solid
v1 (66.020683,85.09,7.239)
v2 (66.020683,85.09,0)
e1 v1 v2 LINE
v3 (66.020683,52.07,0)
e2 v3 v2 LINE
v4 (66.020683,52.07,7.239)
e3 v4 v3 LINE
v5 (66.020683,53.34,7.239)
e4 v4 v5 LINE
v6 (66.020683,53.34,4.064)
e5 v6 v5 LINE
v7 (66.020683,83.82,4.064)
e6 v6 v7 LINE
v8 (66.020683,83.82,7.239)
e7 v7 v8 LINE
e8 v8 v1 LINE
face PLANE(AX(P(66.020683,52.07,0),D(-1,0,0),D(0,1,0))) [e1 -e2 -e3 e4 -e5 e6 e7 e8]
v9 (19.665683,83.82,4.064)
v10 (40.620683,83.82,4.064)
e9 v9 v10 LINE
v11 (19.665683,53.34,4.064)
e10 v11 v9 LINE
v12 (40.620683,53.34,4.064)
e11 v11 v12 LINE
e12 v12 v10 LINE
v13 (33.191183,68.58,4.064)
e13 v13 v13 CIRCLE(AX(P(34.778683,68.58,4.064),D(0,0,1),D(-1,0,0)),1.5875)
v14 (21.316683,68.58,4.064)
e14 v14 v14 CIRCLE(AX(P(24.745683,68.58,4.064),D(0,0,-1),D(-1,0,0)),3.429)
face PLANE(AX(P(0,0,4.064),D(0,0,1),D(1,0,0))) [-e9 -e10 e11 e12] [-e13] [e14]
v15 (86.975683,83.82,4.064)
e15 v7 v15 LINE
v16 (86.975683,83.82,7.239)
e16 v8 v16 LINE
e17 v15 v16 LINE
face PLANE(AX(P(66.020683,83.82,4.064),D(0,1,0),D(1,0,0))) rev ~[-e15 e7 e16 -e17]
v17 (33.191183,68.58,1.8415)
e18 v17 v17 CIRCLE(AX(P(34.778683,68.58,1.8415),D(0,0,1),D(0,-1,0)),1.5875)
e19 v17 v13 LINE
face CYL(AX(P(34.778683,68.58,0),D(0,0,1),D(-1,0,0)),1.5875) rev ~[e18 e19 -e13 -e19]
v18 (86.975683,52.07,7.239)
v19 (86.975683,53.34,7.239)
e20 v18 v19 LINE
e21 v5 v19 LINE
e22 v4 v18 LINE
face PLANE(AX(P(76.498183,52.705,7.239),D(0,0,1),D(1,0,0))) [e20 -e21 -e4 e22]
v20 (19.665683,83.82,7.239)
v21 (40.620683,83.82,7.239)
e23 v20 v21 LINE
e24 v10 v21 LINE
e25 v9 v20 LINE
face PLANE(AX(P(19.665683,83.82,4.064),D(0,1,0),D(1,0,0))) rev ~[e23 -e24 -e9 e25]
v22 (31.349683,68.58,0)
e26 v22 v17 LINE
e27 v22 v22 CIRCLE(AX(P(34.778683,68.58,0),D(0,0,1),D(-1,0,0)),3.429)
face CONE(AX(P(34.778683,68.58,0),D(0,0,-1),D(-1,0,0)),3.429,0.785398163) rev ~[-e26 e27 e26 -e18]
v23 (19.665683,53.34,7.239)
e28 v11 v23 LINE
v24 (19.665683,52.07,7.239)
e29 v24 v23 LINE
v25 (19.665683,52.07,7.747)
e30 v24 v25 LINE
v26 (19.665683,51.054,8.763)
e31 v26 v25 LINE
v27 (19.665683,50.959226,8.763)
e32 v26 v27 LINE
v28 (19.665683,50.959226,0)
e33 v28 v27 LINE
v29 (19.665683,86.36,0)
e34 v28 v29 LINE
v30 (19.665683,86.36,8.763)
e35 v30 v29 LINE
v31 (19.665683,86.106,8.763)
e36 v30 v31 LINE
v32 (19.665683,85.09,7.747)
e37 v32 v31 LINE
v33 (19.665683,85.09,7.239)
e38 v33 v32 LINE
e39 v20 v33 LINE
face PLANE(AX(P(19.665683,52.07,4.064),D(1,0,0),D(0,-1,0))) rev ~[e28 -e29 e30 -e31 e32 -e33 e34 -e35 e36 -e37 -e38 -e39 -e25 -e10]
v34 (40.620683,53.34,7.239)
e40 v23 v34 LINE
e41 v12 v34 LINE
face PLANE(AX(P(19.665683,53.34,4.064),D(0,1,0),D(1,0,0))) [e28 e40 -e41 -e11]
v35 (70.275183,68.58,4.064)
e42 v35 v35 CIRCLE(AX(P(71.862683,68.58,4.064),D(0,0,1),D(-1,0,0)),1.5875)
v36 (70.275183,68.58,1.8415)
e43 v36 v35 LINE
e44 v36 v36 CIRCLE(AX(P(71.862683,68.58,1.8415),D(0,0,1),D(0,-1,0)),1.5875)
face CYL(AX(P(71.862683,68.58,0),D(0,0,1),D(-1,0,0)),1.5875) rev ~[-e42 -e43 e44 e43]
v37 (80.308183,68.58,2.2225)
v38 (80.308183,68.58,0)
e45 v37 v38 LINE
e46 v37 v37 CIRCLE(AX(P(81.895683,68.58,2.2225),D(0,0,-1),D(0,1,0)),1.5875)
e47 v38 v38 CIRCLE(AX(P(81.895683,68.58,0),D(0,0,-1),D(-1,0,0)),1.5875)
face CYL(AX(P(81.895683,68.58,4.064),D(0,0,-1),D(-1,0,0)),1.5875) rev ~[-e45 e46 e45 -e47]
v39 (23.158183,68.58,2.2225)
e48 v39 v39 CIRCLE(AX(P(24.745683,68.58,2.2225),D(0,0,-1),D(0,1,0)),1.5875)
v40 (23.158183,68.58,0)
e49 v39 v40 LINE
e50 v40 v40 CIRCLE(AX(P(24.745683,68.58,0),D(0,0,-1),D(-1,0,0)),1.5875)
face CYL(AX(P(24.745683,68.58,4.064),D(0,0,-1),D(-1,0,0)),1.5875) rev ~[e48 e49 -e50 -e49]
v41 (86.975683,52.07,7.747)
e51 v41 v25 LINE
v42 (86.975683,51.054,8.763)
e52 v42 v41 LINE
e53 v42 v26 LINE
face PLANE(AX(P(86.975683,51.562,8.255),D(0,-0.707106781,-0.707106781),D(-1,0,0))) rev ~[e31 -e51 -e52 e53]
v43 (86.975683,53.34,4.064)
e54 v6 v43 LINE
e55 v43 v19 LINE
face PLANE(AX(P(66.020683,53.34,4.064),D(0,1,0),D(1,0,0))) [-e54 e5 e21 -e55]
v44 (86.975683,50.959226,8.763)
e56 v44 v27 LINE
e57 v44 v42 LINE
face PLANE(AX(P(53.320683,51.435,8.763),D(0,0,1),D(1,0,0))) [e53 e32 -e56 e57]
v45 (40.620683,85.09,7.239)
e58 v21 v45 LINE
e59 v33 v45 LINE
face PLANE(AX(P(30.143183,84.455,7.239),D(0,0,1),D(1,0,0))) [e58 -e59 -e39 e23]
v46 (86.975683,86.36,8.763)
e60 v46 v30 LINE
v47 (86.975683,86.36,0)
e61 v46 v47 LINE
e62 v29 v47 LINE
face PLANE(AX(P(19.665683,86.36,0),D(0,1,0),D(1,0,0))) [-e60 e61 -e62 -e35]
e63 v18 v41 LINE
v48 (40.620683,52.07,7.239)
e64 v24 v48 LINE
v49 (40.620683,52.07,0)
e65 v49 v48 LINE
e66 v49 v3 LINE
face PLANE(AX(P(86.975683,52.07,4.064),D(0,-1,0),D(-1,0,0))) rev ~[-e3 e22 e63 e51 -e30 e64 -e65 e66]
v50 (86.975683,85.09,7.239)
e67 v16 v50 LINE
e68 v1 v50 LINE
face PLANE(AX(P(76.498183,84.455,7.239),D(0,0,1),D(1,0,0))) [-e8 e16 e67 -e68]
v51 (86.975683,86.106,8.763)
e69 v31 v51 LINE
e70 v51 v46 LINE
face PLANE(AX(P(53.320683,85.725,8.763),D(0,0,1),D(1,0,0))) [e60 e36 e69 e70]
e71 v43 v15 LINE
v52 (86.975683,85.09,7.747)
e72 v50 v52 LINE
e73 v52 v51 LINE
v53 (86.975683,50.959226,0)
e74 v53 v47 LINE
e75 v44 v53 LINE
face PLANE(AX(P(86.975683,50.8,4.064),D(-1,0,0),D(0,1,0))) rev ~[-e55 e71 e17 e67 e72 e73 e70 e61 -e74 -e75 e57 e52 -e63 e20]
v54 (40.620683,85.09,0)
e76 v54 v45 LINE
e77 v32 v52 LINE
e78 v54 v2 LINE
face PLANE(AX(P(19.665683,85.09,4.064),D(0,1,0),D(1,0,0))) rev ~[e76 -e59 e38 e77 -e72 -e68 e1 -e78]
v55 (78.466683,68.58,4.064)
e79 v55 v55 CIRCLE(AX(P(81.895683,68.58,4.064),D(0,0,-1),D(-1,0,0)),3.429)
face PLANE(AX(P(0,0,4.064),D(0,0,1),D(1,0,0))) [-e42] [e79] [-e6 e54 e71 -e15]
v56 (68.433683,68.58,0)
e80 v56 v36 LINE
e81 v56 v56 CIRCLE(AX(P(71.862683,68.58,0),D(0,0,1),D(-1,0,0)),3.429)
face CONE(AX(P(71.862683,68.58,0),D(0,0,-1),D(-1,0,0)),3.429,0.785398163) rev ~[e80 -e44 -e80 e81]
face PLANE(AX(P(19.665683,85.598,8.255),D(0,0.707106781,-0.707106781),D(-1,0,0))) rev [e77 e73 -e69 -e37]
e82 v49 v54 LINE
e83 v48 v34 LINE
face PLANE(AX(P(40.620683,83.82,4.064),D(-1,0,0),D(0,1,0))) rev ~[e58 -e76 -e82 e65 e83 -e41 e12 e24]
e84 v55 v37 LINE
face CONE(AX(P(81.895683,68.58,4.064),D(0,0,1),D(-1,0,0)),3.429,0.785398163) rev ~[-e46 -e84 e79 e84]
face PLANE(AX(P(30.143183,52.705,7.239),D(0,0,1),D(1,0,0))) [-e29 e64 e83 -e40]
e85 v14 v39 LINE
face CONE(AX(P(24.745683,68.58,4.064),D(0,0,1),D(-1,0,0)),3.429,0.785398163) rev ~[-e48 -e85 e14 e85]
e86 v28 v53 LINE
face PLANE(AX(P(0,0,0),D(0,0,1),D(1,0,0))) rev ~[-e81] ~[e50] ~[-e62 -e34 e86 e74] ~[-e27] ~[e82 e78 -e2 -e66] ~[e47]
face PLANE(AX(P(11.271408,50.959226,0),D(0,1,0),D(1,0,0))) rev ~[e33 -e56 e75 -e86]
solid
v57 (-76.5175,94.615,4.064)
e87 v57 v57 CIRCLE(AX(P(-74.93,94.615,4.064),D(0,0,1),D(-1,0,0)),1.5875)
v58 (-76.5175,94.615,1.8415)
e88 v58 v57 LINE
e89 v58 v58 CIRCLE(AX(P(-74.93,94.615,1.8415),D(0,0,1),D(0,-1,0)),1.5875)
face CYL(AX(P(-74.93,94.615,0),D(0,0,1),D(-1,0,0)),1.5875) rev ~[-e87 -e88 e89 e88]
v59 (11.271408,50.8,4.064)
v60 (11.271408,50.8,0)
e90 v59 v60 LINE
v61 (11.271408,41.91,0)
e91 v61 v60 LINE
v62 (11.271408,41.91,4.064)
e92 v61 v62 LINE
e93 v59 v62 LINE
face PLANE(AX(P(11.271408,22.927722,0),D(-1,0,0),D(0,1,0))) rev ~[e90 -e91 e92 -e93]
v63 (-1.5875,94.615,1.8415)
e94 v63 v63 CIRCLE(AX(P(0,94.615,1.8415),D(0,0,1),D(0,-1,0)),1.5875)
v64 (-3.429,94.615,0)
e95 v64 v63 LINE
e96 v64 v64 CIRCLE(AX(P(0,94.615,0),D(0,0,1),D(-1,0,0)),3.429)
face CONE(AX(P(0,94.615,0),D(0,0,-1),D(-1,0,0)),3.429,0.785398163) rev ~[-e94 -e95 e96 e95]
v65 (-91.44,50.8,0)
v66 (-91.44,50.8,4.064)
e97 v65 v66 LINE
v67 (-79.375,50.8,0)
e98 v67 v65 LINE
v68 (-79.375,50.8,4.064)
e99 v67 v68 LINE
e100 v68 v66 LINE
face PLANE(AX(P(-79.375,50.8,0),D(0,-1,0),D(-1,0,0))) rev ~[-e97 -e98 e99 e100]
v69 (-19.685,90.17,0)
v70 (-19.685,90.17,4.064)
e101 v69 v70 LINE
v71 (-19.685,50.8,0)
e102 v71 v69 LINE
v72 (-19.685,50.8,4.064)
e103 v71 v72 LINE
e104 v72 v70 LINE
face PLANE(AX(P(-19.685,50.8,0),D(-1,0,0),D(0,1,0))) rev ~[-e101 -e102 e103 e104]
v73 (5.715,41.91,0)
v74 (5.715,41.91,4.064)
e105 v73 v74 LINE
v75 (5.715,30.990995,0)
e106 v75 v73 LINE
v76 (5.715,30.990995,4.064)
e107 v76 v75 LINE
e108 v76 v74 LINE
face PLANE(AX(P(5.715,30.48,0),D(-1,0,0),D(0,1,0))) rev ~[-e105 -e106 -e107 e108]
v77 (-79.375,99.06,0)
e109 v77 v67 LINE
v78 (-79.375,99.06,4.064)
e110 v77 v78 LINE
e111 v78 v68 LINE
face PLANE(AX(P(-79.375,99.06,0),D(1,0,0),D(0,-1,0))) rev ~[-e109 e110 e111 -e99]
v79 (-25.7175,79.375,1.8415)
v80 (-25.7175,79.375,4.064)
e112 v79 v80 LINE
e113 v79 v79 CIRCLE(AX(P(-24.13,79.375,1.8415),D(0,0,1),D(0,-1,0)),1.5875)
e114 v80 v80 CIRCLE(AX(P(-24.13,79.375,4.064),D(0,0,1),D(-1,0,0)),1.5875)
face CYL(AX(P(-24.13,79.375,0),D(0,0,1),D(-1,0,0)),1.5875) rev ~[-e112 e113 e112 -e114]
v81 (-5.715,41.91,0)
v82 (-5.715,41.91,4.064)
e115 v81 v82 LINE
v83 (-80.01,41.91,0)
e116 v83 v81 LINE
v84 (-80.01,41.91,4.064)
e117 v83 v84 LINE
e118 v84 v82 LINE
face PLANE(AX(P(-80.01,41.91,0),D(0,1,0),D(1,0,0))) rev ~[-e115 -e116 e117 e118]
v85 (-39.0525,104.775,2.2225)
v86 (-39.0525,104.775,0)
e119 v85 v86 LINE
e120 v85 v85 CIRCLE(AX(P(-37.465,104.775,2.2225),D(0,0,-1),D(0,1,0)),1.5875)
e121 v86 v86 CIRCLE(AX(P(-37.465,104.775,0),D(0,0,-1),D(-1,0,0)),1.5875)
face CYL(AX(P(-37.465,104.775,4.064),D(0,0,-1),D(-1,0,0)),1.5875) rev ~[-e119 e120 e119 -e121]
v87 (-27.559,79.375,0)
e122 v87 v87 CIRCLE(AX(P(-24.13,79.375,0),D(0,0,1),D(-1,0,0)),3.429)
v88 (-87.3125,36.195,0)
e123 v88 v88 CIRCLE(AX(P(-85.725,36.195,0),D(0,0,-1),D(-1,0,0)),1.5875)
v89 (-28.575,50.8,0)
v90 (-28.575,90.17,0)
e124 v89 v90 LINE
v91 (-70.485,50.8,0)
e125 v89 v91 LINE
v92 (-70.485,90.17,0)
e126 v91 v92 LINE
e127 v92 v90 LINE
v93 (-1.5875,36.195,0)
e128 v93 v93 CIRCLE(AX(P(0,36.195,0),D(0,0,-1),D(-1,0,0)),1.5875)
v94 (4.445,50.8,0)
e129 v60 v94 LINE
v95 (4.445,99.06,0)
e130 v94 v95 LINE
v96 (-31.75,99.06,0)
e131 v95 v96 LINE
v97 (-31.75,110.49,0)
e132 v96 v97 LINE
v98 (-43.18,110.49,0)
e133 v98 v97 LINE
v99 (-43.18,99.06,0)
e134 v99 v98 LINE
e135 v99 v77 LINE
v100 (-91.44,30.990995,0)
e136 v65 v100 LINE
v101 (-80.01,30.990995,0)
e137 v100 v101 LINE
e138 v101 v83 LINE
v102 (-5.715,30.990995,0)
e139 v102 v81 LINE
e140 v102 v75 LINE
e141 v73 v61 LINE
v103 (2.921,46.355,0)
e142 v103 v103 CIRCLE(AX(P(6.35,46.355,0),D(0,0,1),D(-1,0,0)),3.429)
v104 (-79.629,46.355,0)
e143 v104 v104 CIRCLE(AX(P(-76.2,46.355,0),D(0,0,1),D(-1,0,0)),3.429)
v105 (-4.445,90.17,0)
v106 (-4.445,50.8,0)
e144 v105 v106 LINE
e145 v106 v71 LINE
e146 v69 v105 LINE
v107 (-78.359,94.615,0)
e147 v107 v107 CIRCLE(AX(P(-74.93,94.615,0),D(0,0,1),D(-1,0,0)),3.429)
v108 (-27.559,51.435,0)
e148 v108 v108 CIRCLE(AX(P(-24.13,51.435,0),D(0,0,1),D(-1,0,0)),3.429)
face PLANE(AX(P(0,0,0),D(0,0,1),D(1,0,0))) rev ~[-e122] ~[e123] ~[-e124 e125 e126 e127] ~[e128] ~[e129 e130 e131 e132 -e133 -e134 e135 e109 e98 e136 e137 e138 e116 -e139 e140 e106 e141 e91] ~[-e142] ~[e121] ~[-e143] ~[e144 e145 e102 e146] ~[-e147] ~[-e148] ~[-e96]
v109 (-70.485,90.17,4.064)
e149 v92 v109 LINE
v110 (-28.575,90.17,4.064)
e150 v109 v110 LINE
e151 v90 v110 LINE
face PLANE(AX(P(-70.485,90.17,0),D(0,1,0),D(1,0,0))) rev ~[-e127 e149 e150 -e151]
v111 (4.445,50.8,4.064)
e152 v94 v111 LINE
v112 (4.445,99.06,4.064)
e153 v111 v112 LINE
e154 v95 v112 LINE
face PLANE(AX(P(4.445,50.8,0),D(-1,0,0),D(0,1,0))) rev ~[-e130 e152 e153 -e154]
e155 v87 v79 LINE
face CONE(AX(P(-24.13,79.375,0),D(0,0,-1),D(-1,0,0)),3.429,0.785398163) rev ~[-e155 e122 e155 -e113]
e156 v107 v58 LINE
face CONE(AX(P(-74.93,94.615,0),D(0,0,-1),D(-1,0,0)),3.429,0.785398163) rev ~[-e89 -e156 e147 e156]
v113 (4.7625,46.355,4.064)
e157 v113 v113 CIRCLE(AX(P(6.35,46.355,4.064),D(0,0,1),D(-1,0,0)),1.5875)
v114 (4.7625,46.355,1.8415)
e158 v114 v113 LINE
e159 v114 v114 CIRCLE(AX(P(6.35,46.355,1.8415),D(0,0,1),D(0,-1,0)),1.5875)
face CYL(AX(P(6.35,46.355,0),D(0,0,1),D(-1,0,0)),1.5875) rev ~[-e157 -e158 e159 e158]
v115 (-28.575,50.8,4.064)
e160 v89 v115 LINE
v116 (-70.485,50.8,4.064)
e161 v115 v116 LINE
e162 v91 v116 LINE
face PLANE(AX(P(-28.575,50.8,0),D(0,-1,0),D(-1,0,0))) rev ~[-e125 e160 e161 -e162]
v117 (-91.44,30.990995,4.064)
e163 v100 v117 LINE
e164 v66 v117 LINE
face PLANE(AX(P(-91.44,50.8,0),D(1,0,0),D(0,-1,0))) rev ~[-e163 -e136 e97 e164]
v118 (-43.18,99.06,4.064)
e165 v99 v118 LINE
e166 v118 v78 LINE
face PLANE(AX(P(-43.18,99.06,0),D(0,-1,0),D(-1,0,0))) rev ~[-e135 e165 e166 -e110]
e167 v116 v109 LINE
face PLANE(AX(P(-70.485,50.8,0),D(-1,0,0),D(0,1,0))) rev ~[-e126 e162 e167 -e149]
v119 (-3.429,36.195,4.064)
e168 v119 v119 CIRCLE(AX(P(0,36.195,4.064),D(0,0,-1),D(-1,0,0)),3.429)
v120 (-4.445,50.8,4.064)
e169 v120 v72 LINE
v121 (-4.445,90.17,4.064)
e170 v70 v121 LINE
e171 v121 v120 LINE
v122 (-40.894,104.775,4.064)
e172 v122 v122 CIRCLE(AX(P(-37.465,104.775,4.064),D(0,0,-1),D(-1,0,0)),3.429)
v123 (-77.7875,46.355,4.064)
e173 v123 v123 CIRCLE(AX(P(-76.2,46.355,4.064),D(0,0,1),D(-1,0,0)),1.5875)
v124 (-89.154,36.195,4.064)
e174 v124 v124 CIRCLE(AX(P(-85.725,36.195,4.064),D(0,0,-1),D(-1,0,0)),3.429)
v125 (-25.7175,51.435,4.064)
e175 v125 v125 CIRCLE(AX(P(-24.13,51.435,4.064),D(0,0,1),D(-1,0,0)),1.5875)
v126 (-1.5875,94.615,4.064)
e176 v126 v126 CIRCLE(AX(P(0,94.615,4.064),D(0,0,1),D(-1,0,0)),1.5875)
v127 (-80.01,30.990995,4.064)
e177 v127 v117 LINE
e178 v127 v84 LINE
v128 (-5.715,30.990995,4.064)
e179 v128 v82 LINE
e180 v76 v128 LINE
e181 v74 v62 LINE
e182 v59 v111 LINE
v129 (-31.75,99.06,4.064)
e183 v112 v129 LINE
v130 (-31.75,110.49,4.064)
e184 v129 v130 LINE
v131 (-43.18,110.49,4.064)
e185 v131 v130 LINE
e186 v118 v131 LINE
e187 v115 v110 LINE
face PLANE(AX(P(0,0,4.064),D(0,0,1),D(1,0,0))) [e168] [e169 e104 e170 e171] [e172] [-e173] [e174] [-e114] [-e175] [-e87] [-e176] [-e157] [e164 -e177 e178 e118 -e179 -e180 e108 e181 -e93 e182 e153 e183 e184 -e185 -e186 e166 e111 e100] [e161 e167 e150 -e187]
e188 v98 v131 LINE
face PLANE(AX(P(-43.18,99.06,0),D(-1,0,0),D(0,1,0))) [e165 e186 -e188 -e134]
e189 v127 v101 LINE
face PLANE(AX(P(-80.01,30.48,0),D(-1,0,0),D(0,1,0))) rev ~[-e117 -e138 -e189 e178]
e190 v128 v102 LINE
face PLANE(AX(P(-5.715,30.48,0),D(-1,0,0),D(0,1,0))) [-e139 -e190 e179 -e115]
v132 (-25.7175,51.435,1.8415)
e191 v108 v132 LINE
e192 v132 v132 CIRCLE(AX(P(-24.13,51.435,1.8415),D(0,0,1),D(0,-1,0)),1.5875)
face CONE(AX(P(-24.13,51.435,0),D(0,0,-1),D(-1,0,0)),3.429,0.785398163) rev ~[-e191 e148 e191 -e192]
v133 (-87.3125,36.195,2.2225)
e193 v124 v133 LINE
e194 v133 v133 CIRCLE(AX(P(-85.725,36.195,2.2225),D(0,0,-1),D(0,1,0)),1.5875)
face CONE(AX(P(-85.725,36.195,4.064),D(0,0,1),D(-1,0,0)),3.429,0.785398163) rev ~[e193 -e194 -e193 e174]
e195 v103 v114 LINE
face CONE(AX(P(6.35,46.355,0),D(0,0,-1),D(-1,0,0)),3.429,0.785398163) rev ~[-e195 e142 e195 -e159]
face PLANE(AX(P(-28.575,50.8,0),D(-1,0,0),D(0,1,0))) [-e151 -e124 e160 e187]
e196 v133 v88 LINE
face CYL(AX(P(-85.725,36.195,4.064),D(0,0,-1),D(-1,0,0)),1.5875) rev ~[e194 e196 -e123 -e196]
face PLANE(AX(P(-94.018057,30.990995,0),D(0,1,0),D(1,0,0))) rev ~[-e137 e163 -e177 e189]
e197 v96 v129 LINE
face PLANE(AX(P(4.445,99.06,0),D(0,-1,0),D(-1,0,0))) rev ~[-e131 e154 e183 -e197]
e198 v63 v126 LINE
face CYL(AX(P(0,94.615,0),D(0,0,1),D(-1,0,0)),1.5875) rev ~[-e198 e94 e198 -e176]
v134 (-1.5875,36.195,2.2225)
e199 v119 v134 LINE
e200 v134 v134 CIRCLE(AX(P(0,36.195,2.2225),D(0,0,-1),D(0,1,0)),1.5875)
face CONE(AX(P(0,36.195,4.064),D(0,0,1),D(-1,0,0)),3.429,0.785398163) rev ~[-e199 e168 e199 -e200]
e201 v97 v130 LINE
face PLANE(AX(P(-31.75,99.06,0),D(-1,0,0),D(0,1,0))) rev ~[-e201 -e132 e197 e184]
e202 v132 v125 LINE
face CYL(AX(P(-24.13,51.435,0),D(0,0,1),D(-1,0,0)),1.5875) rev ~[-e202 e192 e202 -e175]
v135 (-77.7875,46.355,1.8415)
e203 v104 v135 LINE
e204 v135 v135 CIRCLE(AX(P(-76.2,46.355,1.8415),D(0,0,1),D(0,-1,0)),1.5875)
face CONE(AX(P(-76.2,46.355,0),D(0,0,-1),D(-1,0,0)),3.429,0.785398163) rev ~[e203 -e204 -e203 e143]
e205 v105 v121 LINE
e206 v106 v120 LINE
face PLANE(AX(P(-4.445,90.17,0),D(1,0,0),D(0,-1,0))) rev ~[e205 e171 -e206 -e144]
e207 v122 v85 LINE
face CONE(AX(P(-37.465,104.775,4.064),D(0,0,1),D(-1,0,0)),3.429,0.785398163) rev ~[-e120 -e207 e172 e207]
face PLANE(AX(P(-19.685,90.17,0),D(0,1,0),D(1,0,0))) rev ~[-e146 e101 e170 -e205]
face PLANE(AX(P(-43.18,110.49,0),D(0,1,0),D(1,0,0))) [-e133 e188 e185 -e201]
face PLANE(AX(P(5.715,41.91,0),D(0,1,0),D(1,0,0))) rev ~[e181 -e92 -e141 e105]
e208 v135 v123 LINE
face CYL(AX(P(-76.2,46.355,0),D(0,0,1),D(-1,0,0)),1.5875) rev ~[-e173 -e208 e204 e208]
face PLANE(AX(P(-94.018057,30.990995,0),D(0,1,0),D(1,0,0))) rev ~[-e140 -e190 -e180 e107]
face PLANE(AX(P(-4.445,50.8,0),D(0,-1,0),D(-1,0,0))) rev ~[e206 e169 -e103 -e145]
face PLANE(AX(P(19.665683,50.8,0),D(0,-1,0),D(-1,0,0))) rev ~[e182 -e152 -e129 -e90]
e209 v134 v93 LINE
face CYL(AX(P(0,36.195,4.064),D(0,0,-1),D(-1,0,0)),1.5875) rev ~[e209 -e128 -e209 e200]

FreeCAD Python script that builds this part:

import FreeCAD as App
import Part
import Sketcher

V = App.Vector
Q = App.Units.Quantity


def edges_at(feature, points):
    """Names of the edges that pass closest to the given points."""
    edges = feature.Shape.Edges
    near = lambda p: min(range(len(edges)), key=lambda i: edges[i].distToShape(Part.Vertex(*p))[0])
    return sorted({f"Edge{near(p) + 1}" for p in points})


def add_polygon(sketch, points):
    """Adds a closed chain of lines whose ends are joined by coincident constraints."""
    first, n = sketch.GeometryCount, len(points)
    for a, b in zip(points, points[1:] + points[:1]):
        sketch.addGeometry(Part.LineSegment(App.Vector(*a, 0), App.Vector(*b, 0)), False)
    for i in range(n):
        sketch.addConstraint(Sketcher.Constraint("Coincident", first + i, 2, first + (i + 1) % n, 1))

doc = App.newDocument("Part")
body = doc.addObject("PartDesign::Body", "Body")
body.AllowCompound = True

sketch1 = body.newObject("Sketcher::SketchObject", "Sketch")
sketch1.AttachmentSupport = (doc.getObject("XY_Plane"), [""])
sketch1.MapMode = "FlatFace"
add_polygon(sketch1, [(-80, -30.5), (-5.7, -30.5), (-5.7, -41.9), (5.7, -41.9), (5.7, -30.5), (80, -30.5), (80, -41.9), (91.4, -41.9), (91.4, 50.8), (87, 50.8), (87, 86.4), (19.7, 86.4), (19.7, 50.8), (4.4, 50.8), (4.4, 99.1), (-31.8, 99.1), (-31.8, 110.5), (-43.2, 110.5), (-43.2, 99.1), (-79.4, 99.1), (-79.4, 50.8), (-91.4, 50.8), (-91.4, -41.9), (-80, -41.9)])
sketch1.addGeometry(Part.Circle(V(-86.4, -25.4, 0), V(0, 0, 1), 2.5), False)
add_polygon(sketch1, [(-82.5, -21.6), (-82.5, 21.6), (-30.5, 21.6), (-30.5, -21.6)])
sketch1.addGeometry(Part.Circle(V(-35.6, -25.4, 0), V(0, 0, 1), 2.5), False)
sketch1.addGeometry(Part.Circle(V(-25.4, -25.4, 0), V(0, 0, 1), 2.5), False)
sketch1.addGeometry(Part.Circle(V(-86.4, 25.4, 0), V(0, 0, 1), 2.5), False)
sketch1.addGeometry(Part.Circle(V(-35.6, 25.4, 0), V(0, 0, 1), 2.5), False)
sketch1.addGeometry(Part.Circle(V(-25.4, 25.4, 0), V(0, 0, 1), 2.5), False)
sketch1.addGeometry(Part.Circle(V(25.4, -25.4, 0), V(0, 0, 1), 2.5), False)
sketch1.addGeometry(Part.Circle(V(35.6, -25.4, 0), V(0, 0, 1), 2.5), False)
add_polygon(sketch1, [(21.6, -21.6), (-21.6, -21.6), (-21.6, 21.6), (21.6, 21.6)])
sketch1.addGeometry(Part.Circle(V(86.4, -25.4, 0), V(0, 0, 1), 2.5), False)
add_polygon(sketch1, [(30.5, 21.6), (82.5, 21.6), (82.5, -21.6), (30.5, -21.6)])
sketch1.addGeometry(Part.Circle(V(25.4, 25.4, 0), V(0, 0, 1), 2.5), False)
sketch1.addGeometry(Part.Circle(V(35.6, 25.4, 0), V(0, 0, 1), 2.5), False)
sketch1.addGeometry(Part.Circle(V(86.4, 25.4, 0), V(0, 0, 1), 2.5), False)
add_polygon(sketch1, [(-5.7, 41.9), (-5.7, 30.5), (-80, 30.5), (-80, 41.9)])
add_polygon(sketch1, [(-28.6, 50.8), (-70.5, 50.8), (-70.5, 90.2), (-28.6, 90.2)])
add_polygon(sketch1, [(-4.4, 50.8), (-19.7, 50.8), (-19.7, 90.2), (-4.4, 90.2)])
add_polygon(sketch1, [(80, 41.9), (80, 30.5), (5.7, 30.5), (5.7, 41.9)])
add_polygon(sketch1, [(66, 52.1), (40.6, 52.1), (40.6, 85.1), (66, 85.1)])
sketch1.addConstraint(Sketcher.Constraint("Horizontal", 0))
sketch1.addConstraint(Sketcher.Constraint("Vertical", 1))
sketch1.addConstraint(Sketcher.Constraint("Horizontal", 2))
sketch1.addConstraint(Sketcher.Constraint("Vertical", 3))
sketch1.addConstraint(Sketcher.Constraint("Horizontal", 4))
sketch1.addConstraint(Sketcher.Constraint("Vertical", 5))
sketch1.addConstraint(Sketcher.Constraint("Horizontal", 6))
sketch1.addConstraint(Sketcher.Constraint("Vertical", 7))
sketch1.addConstraint(Sketcher.Constraint("Horizontal", 8))
sketch1.addConstraint(Sketcher.Constraint("Vertical", 9))
sketch1.addConstraint(Sketcher.Constraint("Horizontal", 10))
sketch1.addConstraint(Sketcher.Constraint("Vertical", 11))
sketch1.addConstraint(Sketcher.Constraint("Horizontal", 12))
sketch1.addConstraint(Sketcher.Constraint("Vertical", 13))
sketch1.addConstraint(Sketcher.Constraint("Horizontal", 14))
sketch1.addConstraint(Sketcher.Constraint("Vertical", 15))
sketch1.addConstraint(Sketcher.Constraint("Horizontal", 16))
sketch1.addConstraint(Sketcher.Constraint("Vertical", 17))
sketch1.addConstraint(Sketcher.Constraint("Horizontal", 18))
sketch1.addConstraint(Sketcher.Constraint("Vertical", 19))
sketch1.addConstraint(Sketcher.Constraint("Horizontal", 20))
sketch1.addConstraint(Sketcher.Constraint("Vertical", 21))
sketch1.addConstraint(Sketcher.Constraint("Horizontal", 22))
sketch1.addConstraint(Sketcher.Constraint("Vertical", 23))
sketch1.addConstraint(Sketcher.Constraint("Vertical", 25))
sketch1.addConstraint(Sketcher.Constraint("Horizontal", 26))
sketch1.addConstraint(Sketcher.Constraint("Vertical", 27))
sketch1.addConstraint(Sketcher.Constraint("Horizontal", 28))
sketch1.addConstraint(Sketcher.Constraint("Horizontal", 36))
sketch1.addConstraint(Sketcher.Constraint("Vertical", 37))
sketch1.addConstraint(Sketcher.Constraint("Horizontal", 38))
sketch1.addConstraint(Sketcher.Constraint("Vertical", 39))
sketch1.addConstraint(Sketcher.Constraint("Horizontal", 41))
sketch1.addConstraint(Sketcher.Constraint("Vertical", 42))
sketch1.addConstraint(Sketcher.Constraint("Horizontal", 43))
sketch1.addConstraint(Sketcher.Constraint("Vertical", 44))
sketch1.addConstraint(Sketcher.Constraint("Vertical", 48))
sketch1.addConstraint(Sketcher.Constraint("Horizontal", 49))
sketch1.addConstraint(Sketcher.Constraint("Vertical", 50))
sketch1.addConstraint(Sketcher.Constraint("Horizontal", 51))
sketch1.addConstraint(Sketcher.Constraint("Horizontal", 52))
sketch1.addConstraint(Sketcher.Constraint("Vertical", 53))
sketch1.addConstraint(Sketcher.Constraint("Horizontal", 54))
sketch1.addConstraint(Sketcher.Constraint("Vertical", 55))
sketch1.addConstraint(Sketcher.Constraint("Horizontal", 56))
sketch1.addConstraint(Sketcher.Constraint("Vertical", 57))
sketch1.addConstraint(Sketcher.Constraint("Horizontal", 58))
sketch1.addConstraint(Sketcher.Constraint("Vertical", 59))
sketch1.addConstraint(Sketcher.Constraint("Vertical", 60))
sketch1.addConstraint(Sketcher.Constraint("Horizontal", 61))
sketch1.addConstraint(Sketcher.Constraint("Vertical", 62))
sketch1.addConstraint(Sketcher.Constraint("Horizontal", 63))
sketch1.addConstraint(Sketcher.Constraint("Horizontal", 64))
sketch1.addConstraint(Sketcher.Constraint("Vertical", 65))
sketch1.addConstraint(Sketcher.Constraint("Horizontal", 66))
sketch1.addConstraint(Sketcher.Constraint("Vertical", 67))
sketch1.addConstraint(Sketcher.Constraint("Equal", 24, 29))
sketch1.addConstraint(Sketcher.Constraint("Equal", 29, 30))
sketch1.addConstraint(Sketcher.Constraint("Equal", 30, 31))
sketch1.addConstraint(Sketcher.Constraint("Equal", 31, 32))
sketch1.addConstraint(Sketcher.Constraint("Equal", 32, 33))
sketch1.addConstraint(Sketcher.Constraint("Equal", 33, 34))
sketch1.addConstraint(Sketcher.Constraint("Equal", 34, 35))
sketch1.addConstraint(Sketcher.Constraint("Equal", 35, 40))
sketch1.addConstraint(Sketcher.Constraint("Equal", 40, 45))
sketch1.addConstraint(Sketcher.Constraint("Equal", 45, 46))
sketch1.addConstraint(Sketcher.Constraint("Equal", 46, 47))
sketch1.addConstraint(Sketcher.Constraint("Symmetric", 33, 3, 34, 3, -1, 1))
sketch1.addConstraint(Sketcher.Constraint("Symmetric", 32, 3, 35, 3, -1, 1))
sketch1.addConstraint(Sketcher.Constraint("Symmetric", 31, 3, 40, 3, -1, 1))
sketch1.addConstraint(Sketcher.Constraint("Symmetric", 30, 3, 45, 3, -1, 1))
sketch1.addConstraint(Sketcher.Constraint("Symmetric", 29, 3, 46, 3, -1, 1))
sketch1.addConstraint(Sketcher.Constraint("Symmetric", 24, 3, 47, 3, -1, 1))
sketch1.addConstraint(Sketcher.Constraint("Symmetric", 36, 2, 38, 2, -1, 1))
sketch1.addConstraint(Sketcher.Constraint("Symmetric", 28, 2, 41, 2, -1, 1))
sketch1.addConstraint(Sketcher.Constraint("Symmetric", 26, 2, 43, 2, -1, 1))
sketch1.addConstraint(Sketcher.Constraint("Symmetric", 3, 2, 48, 2, -1, 1))
sketch1.addConstraint(Sketcher.Constraint("Symmetric", 5, 2, 50, 2, -1, 1))
sketch1.addConstraint(Sketcher.Constraint("Symmetric", 23, 2, 60, 2, -1, 1))
sketch1.addConstraint(Sketcher.Constraint("Symmetric", 1, 2, 62, 2, -1, 1))
sketch1.addConstraint(Sketcher.Constraint("Symmetric", 30, 3, 34, 3, -2))
sketch1.addConstraint(Sketcher.Constraint("Symmetric", 29, 3, 35, 3, -2))
sketch1.addConstraint(Sketcher.Constraint("Symmetric", 24, 3, 40, 3, -2))
sketch1.addConstraint(Sketcher.Constraint("Symmetric", 0, 2, 3, 2, -2))
sketch1.addConstraint(Sketcher.Constraint("Symmetric", 7, 2, 20, 2, -2))
sketch1.addConstraint(Sketcher.Constraint("Symmetric", 5, 2, 22, 2, -2))
sketch1.addConstraint(Sketcher.Constraint("Symmetric", 12, 2, 59, 2, -2))
sketch1.addConstraint(Sketcher.Constraint("Horizontal", 24, 3, 29, 3))
sketch1.addConstraint(Sketcher.Constraint("Horizontal", 29, 3, 30, 3))
sketch1.addConstraint(Sketcher.Constraint("Horizontal", 2, 2, 5, 2))
sketch1.addConstraint(Sketcher.Constraint("Horizontal", 8, 2, 11, 2))
sketch1.addConstraint(Sketcher.Constraint("Horizontal", 14, 2, 17, 2))
sketch1.addConstraint(Sketcher.Constraint("Horizontal", 28, 2, 36, 2))
sketch1.addConstraint(Sketcher.Constraint("Horizontal", 26, 2, 37, 2))
sketch1.addConstraint(Sketcher.Constraint("Horizontal", 20, 2, 52, 2))
sketch1.addConstraint(Sketcher.Constraint("Horizontal", 54, 2, 57, 2))
sketch1.addConstraint(Sketcher.Constraint("Equal", 2, 6))
sketch1.addConstraint(Sketcher.Constraint("Equal", 6, 16))
sketch1.addConstraint(Sketcher.Constraint("Equal", 14, 18))
sketch1.addConstraint(Sketcher.Constraint("Equal", 22, 1))
sketch1.addConstraint(Sketcher.Constraint("Equal", 5, 15))
sketch1.addConstraint(Sketcher.Constraint("Equal", 38, 25))
sketch1.addConstraint(Sketcher.Constraint("Diameter", 24, Q("0.2 in")))
sketch1.addConstraint(Sketcher.Constraint("DistanceX", 64, 2, 64, 1, Q("1 in")))
sketch1.addConstraint(Sketcher.Constraint("DistanceX", 36, 2, 36, 1, Q("1.7 in")))
sketch1.addConstraint(Sketcher.Constraint("DistanceX", 56, 2, 56, 1, Q("0.6 in")))
sketch1.addConstraint(Sketcher.Constraint("DistanceY", 9, 1, 9, 2, Q("1.4 in")))
sketch1.addConstraint(Sketcher.Constraint("DistanceY", 13, 1, 13, 2, Q("1.9 in")))
sketch1.addConstraint(Sketcher.Constraint("DistanceY", 65, 1, 65, 2, Q("1.3 in")))
sketch1.addConstraint(Sketcher.Constraint("DistanceY", 24, 3, -1, 1, Q("1 in")))
sketch1.addConstraint(Sketcher.Constraint("DistanceX", 30, 3, -1, 1, Q("1 in")))
sketch1.addConstraint(Sketcher.Constraint("DistanceY", -1, 1, 7, 2, Q("2 in")))
sketch1.addConstraint(Sketcher.Constraint("DistanceX", 2, 1, 2, 2, Q("0.45 in")))
sketch1.addConstraint(Sketcher.Constraint("DistanceX", 10, 2, 10, 1, Q("2.65 in")))
sketch1.addConstraint(Sketcher.Constraint("DistanceX", 26, 1, 26, 2, Q("2.05 in")))
sketch1.addConstraint(Sketcher.Constraint("DistanceX", 52, 2, 52, 1, Q("1.65 in")))
sketch1.addConstraint(Sketcher.Constraint("DistanceY", 7, 1, 7, 2, Q("3.65 in")))
sketch1.addConstraint(Sketcher.Constraint("DistanceY", 53, 1, 53, 2, Q("1.55 in")))
sketch1.addConstraint(Sketcher.Constraint("DistanceX", 24, 3, -1, 1, Q("3.4 in")))
sketch1.addConstraint(Sketcher.Constraint("DistanceX", 29, 3, -1, 1, Q("1.4 in")))
sketch1.addConstraint(Sketcher.Constraint("DistanceX", -1, 1, 6, 2, Q("3.6 in")))
sketch1.addConstraint(Sketcher.Constraint("DistanceX", 16, 2, -1, 1, Q("1.7 in")))
sketch1.addConstraint(Sketcher.Constraint("DistanceX", 26, 2, -1, 1, Q("1.2 in")))
sketch1.addConstraint(Sketcher.Constraint("DistanceX", 14, 2, 14, 1, Q("1.425 in")))
sketch1.addConstraint(Sketcher.Constraint("DistanceY", -1, 1, 64, 2, Q("2.05 in")))
sketch1.addConstraint(Sketcher.Constraint("DistanceX", 52, 2, -1, 1, Q("2.775 in")))
sketch1.addConstraint(Sketcher.Constraint("DistanceX", 8, 2, 8, 1, Q("4.464317 mm")))
sketch1.addConstraint(Sketcher.Constraint("DistanceX", -1, 1, 64, 2, Q("40.620683 mm")))
pad1 = body.newObject("PartDesign::Pad", "Pad")
pad1.Profile = sketch1
pad1.Length = Q("0.16 in")

sketch2 = body.newObject("Sketcher::SketchObject", "Sketch001")
sketch2.AttachmentSupport = (doc.getObject("XY_Plane"), [""])
sketch2.MapMode = "FlatFace"
sketch2.addGeometry(Part.Circle(V(-25.4, 25.4, 0), V(0, 0, 1), 2.5), False)
sketch2.addGeometry(Part.Circle(V(25.4, 25.4, 0), V(0, 0, 1), 2.5), False)
sketch2.addGeometry(Part.Circle(V(25.4, -25.4, 0), V(0, 0, 1), 2.5), False)
sketch2.addGeometry(Part.Circle(V(-25.4, -25.4, 0), V(0, 0, 1), 2.5), False)
sketch2.addGeometry(Part.Circle(V(-86.4, 25.4, 0), V(0, 0, 1), 2.5), False)
sketch2.addGeometry(Part.Circle(V(-86.4, -25.4, 0), V(0, 0, 1), 2.5), False)
sketch2.addGeometry(Part.Circle(V(-35.6, 25.4, 0), V(0, 0, 1), 2.5), False)
sketch2.addGeometry(Part.Circle(V(-35.6, -25.4, 0), V(0, 0, 1), 2.5), False)
sketch2.addGeometry(Part.Circle(V(35.6, -25.4, 0), V(0, 0, 1), 2.5), False)
sketch2.addGeometry(Part.Circle(V(86.4, -25.4, 0), V(0, 0, 1), 2.5), False)
sketch2.addGeometry(Part.Circle(V(86.4, 25.4, 0), V(0, 0, 1), 2.5), False)
sketch2.addGeometry(Part.Circle(V(35.6, 25.4, 0), V(0, 0, 1), 2.5), False)
sketch2.addConstraint(Sketcher.Constraint("Equal", 0, 1))
sketch2.addConstraint(Sketcher.Constraint("Equal", 1, 2))
sketch2.addConstraint(Sketcher.Constraint("Equal", 2, 3))
sketch2.addConstraint(Sketcher.Constraint("Equal", 3, 4))
sketch2.addConstraint(Sketcher.Constraint("Equal", 4, 5))
sketch2.addConstraint(Sketcher.Constraint("Equal", 5, 6))
sketch2.addConstraint(Sketcher.Constraint("Equal", 6, 7))
sketch2.addConstraint(Sketcher.Constraint("Equal", 7, 8))
sketch2.addConstraint(Sketcher.Constraint("Equal", 8, 9))
sketch2.addConstraint(Sketcher.Constraint("Equal", 9, 10))
sketch2.addConstraint(Sketcher.Constraint("Equal", 10, 11))
sketch2.addConstraint(Sketcher.Constraint("Symmetric", 0, 3, 2, 3, -1, 1))
sketch2.addConstraint(Sketcher.Constraint("Symmetric", 1, 3, 3, 3, -1, 1))
sketch2.addConstraint(Sketcher.Constraint("Symmetric", 6, 3, 8, 3, -1, 1))
sketch2.addConstraint(Sketcher.Constraint("Symmetric", 4, 3, 9, 3, -1, 1))
sketch2.addConstraint(Sketcher.Constraint("Symmetric", 5, 3, 10, 3, -1, 1))
sketch2.addConstraint(Sketcher.Constraint("Symmetric", 7, 3, 11, 3, -1, 1))
sketch2.addConstraint(Sketcher.Constraint("Symmetric", 0, 3, 1, 3, -2))
sketch2.addConstraint(Sketcher.Constraint("Symmetric", 7, 3, 8, 3, -2))
sketch2.addConstraint(Sketcher.Constraint("Symmetric", 5, 3, 9, 3, -2))
sketch2.addConstraint(Sketcher.Constraint("Horizontal", 1, 3, 4, 3))
sketch2.addConstraint(Sketcher.Constraint("Horizontal", 4, 3, 6, 3))
sketch2.addConstraint(Sketcher.Constraint("Diameter", 0, Q("0.2 in")))
sketch2.addConstraint(Sketcher.Constraint("DistanceX", 0, 3, -1, 1, Q("1 in")))
sketch2.addConstraint(Sketcher.Constraint("DistanceY", -1, 1, 0, 3, Q("1 in")))
sketch2.addConstraint(Sketcher.Constraint("DistanceX", 4, 3, 6, 3, Q("2 in")))
sketch2.addConstraint(Sketcher.Constraint("DistanceX", 4, 3, -1, 1, Q("3.4 in")))
pad2 = body.newObject("PartDesign::Pad", "Pad001")
pad2.Profile = sketch2
pad2.Length = Q("0.3 in")

sketch3 = body.newObject("Sketcher::SketchObject", "Sketch002")
sketch3.AttachmentSupport = (doc.getObject("XY_Plane"), [""])
sketch3.MapMode = "FlatFace"
sketch3.addGeometry(Part.Circle(V(-25.4, 25.4, 0), V(0, 0, 1), 0.6), False)
sketch3.addGeometry(Part.Circle(V(25.4, 25.4, 0), V(0, 0, 1), 0.6), False)
sketch3.addGeometry(Part.Circle(V(25.4, -25.4, 0), V(0, 0, 1), 0.6), False)
sketch3.addGeometry(Part.Circle(V(-25.4, -25.4, 0), V(0, 0, 1), 0.6), False)
sketch3.addGeometry(Part.Circle(V(-86.4, 25.4, 0), V(0, 0, 1), 0.6), False)
sketch3.addGeometry(Part.Circle(V(-35.6, 25.4, 0), V(0, 0, 1), 0.6), False)
sketch3.addGeometry(Part.Circle(V(-86.4, -25.4, 0), V(0, 0, 1), 0.6), False)
sketch3.addGeometry(Part.Circle(V(-35.6, -25.4, 0), V(0, 0, 1), 0.6), False)
sketch3.addGeometry(Part.Circle(V(35.6, 25.4, 0), V(0, 0, 1), 0.6), False)
sketch3.addGeometry(Part.Circle(V(86.4, 25.4, 0), V(0, 0, 1), 0.6), False)
sketch3.addGeometry(Part.Circle(V(35.6, -25.4, 0), V(0, 0, 1), 0.6), False)
sketch3.addGeometry(Part.Circle(V(86.4, -25.4, 0), V(0, 0, 1), 0.6), False)
sketch3.addConstraint(Sketcher.Constraint("Equal", 0, 1))
sketch3.addConstraint(Sketcher.Constraint("Equal", 1, 2))
sketch3.addConstraint(Sketcher.Constraint("Equal", 2, 3))
sketch3.addConstraint(Sketcher.Constraint("Equal", 3, 4))
sketch3.addConstraint(Sketcher.Constraint("Equal", 4, 5))
sketch3.addConstraint(Sketcher.Constraint("Equal", 5, 6))
sketch3.addConstraint(Sketcher.Constraint("Equal", 6, 7))
sketch3.addConstraint(Sketcher.Constraint("Equal", 7, 8))
sketch3.addConstraint(Sketcher.Constraint("Equal", 8, 9))
sketch3.addConstraint(Sketcher.Constraint("Equal", 9, 10))
sketch3.addConstraint(Sketcher.Constraint("Equal", 10, 11))
sketch3.addConstraint(Sketcher.Constraint("Symmetric", 0, 3, 2, 3, -1, 1))
sketch3.addConstraint(Sketcher.Constraint("Symmetric", 1, 3, 3, 3, -1, 1))
sketch3.addConstraint(Sketcher.Constraint("Symmetric", 7, 3, 8, 3, -1, 1))
sketch3.addConstraint(Sketcher.Constraint("Symmetric", 6, 3, 9, 3, -1, 1))
sketch3.addConstraint(Sketcher.Constraint("Symmetric", 5, 3, 10, 3, -1, 1))
sketch3.addConstraint(Sketcher.Constraint("Symmetric", 4, 3, 11, 3, -1, 1))
sketch3.addConstraint(Sketcher.Constraint("Symmetric", 0, 3, 1, 3, -2))
sketch3.addConstraint(Sketcher.Constraint("Symmetric", 5, 3, 8, 3, -2))
sketch3.addConstraint(Sketcher.Constraint("Symmetric", 4, 3, 9, 3, -2))
sketch3.addConstraint(Sketcher.Constraint("Horizontal", 1, 3, 4, 3))
sketch3.addConstraint(Sketcher.Constraint("Horizontal", 4, 3, 5, 3))
sketch3.addConstraint(Sketcher.Constraint("Diameter", 0, Q("0.05 in")))
sketch3.addConstraint(Sketcher.Constraint("DistanceX", 0, 3, -1, 1, Q("1 in")))
sketch3.addConstraint(Sketcher.Constraint("DistanceY", -1, 1, 0, 3, Q("1 in")))
sketch3.addConstraint(Sketcher.Constraint("DistanceX", 4, 3, 5, 3, Q("2 in")))
sketch3.addConstraint(Sketcher.Constraint("DistanceX", 4, 3, -1, 1, Q("3.4 in")))
doc.recompute()
hole = body.newObject("PartDesign::Hole", "Hole")
hole.Profile = sketch3
hole.ThreadType = "None"
hole.Diameter = Q("0.05 in")
hole.DepthType = "ThroughAll"
hole.Reversed = True

sketch4 = body.newObject("Sketcher::SketchObject", "Sketch003")
sketch4.AttachmentSupport = (doc.getObject("XY_Plane"), [""])
sketch4.MapMode = "FlatFace"
sketch4.AttachmentOffset = App.Placement(V(0, 0, 0.16 * 25.4), App.Rotation())
sketch4.addGeometry(Part.Circle(V(-85.7, 36.2, 0), V(0, 0, 1), 1.6), False)
sketch4.addGeometry(Part.Circle(V(-85.7, -36.2, 0), V(0, 0, 1), 1.6), False)
sketch4.addGeometry(Part.Circle(V(85.7, -36.2, 0), V(0, 0, 1), 1.6), False)
sketch4.addGeometry(Part.Circle(V(85.7, 36.2, 0), V(0, 0, 1), 1.6), False)
sketch4.addGeometry(Part.Circle(V(0, 36.2, 0), V(0, 0, 1), 1.6), False)
sketch4.addGeometry(Part.Circle(V(0, -36.2, 0), V(0, 0, 1), 1.6), False)
sketch4.addGeometry(Part.Circle(V(-37.5, 104.8, 0), V(0, 0, 1), 1.6), False)
sketch4.addGeometry(Part.Circle(V(24.7, 68.6, 0), V(0, 0, 1), 1.6), False)
sketch4.addGeometry(Part.Circle(V(81.9, 68.6, 0), V(0, 0, 1), 1.6), False)
sketch4.addConstraint(Sketcher.Constraint("Equal", 0, 1))
sketch4.addConstraint(Sketcher.Constraint("Equal", 1, 2))
sketch4.addConstraint(Sketcher.Constraint("Equal", 2, 3))
sketch4.addConstraint(Sketcher.Constraint("Equal", 3, 4))
sketch4.addConstraint(Sketcher.Constraint("Equal", 4, 5))
sketch4.addConstraint(Sketcher.Constraint("Equal", 5, 6))
sketch4.addConstraint(Sketcher.Constraint("Equal", 6, 7))
sketch4.addConstraint(Sketcher.Constraint("Equal", 7, 8))
sketch4.addConstraint(Sketcher.Constraint("Symmetric", 0, 3, 2, 3, -1, 1))
sketch4.addConstraint(Sketcher.Constraint("Symmetric", 1, 3, 3, 3, -1, 1))
sketch4.addConstraint(Sketcher.Constraint("Symmetric", 4, 3, 5, 3, -1, 1))
sketch4.addConstraint(Sketcher.Constraint("Symmetric", 1, 3, 2, 3, -2))
sketch4.addConstraint(Sketcher.Constraint("PointOnObject", 4, 3, -2))
sketch4.addConstraint(Sketcher.Constraint("Horizontal", 3, 3, 4, 3))
sketch4.addConstraint(Sketcher.Constraint("Horizontal", 7, 3, 8, 3))
sketch4.addConstraint(Sketcher.Constraint("Diameter", 0, Q("0.125 in")))
sketch4.addConstraint(Sketcher.Constraint("DistanceY", -1, 1, 7, 3, Q("2.7 in")))
sketch4.addConstraint(Sketcher.Constraint("DistanceY", 4, 3, 6, 3, Q("2.7 in")))
sketch4.addConstraint(Sketcher.Constraint("DistanceX", 0, 3, 6, 3, Q("1.9 in")))
sketch4.addConstraint(Sketcher.Constraint("DistanceY", 1, 3, 0, 3, Q("2.85 in")))
sketch4.addConstraint(Sketcher.Constraint("DistanceX", 1, 3, 2, 3, Q("6.75 in")))
sketch4.addConstraint(Sketcher.Constraint("DistanceX", 7, 3, 8, 3, Q("2.25 in")))
sketch4.addConstraint(Sketcher.Constraint("DistanceX", -1, 1, 7, 3, Q("24.745683 mm")))
doc.recompute()
hole2 = body.newObject("PartDesign::Hole", "Hole001")
hole2.Profile = sketch4
hole2.ThreadType = "None"
hole2.Diameter = Q("0.125 in")
hole2.DepthType = "ThroughAll"
hole2.HoleCutType = "Countersink"
hole2.HoleCutDiameter = Q("0.27 in")
hole2.HoleCutCountersinkAngle = 90

sketch5 = body.newObject("Sketcher::SketchObject", "Sketch004")
sketch5.AttachmentSupport = (doc.getObject("XY_Plane"), [""])
sketch5.MapMode = "FlatFace"
sketch5.addGeometry(Part.Circle(V(-76.2, 46.4, 0), V(0, 0, 1), 1.6), False)
sketch5.addGeometry(Part.Circle(V(-74.9, 94.6, 0), V(0, 0, 1), 1.6), False)
sketch5.addGeometry(Part.Circle(V(-24.1, 79.4, 0), V(0, 0, 1), 1.6), False)
sketch5.addGeometry(Part.Circle(V(-24.1, 51.4, 0), V(0, 0, 1), 1.6), False)
sketch5.addGeometry(Part.Circle(V(6.3, 46.4, 0), V(0, 0, 1), 1.6), False)
sketch5.addGeometry(Part.Circle(V(0, 94.6, 0), V(0, 0, 1), 1.6), False)
sketch5.addGeometry(Part.Circle(V(34.8, 68.6, 0), V(0, 0, 1), 1.6), False)
sketch5.addGeometry(Part.Circle(V(71.9, 68.6, 0), V(0, 0, 1), 1.6), False)
sketch5.addConstraint(Sketcher.Constraint("Equal", 0, 1))
sketch5.addConstraint(Sketcher.Constraint("Equal", 1, 2))
sketch5.addConstraint(Sketcher.Constraint("Equal", 2, 3))
sketch5.addConstraint(Sketcher.Constraint("Equal", 3, 4))
sketch5.addConstraint(Sketcher.Constraint("Equal", 4, 5))
sketch5.addConstraint(Sketcher.Constraint("Equal", 5, 6))
sketch5.addConstraint(Sketcher.Constraint("Equal", 6, 7))
sketch5.addConstraint(Sketcher.Constraint("PointOnObject", 5, 3, -2))
sketch5.addConstraint(Sketcher.Constraint("Horizontal", 0, 3, 4, 3))
sketch5.addConstraint(Sketcher.Constraint("Horizontal", 1, 3, 5, 3))
sketch5.addConstraint(Sketcher.Constraint("Horizontal", 6, 3, 7, 3))
sketch5.addConstraint(Sketcher.Constraint("Vertical", 2, 3, 3, 3))
sketch5.addConstraint(Sketcher.Constraint("Diameter", 0, Q("0.125 in")))
sketch5.addConstraint(Sketcher.Constraint("DistanceX", 0, 3, -1, 1, Q("3 in")))
sketch5.addConstraint(Sketcher.Constraint("DistanceX", 1, 3, 2, 3, Q("2 in")))
sketch5.addConstraint(Sketcher.Constraint("DistanceY", -1, 1, 6, 3, Q("2.7 in")))
sketch5.addConstraint(Sketcher.Constraint("DistanceY", 0, 3, 1, 3, Q("1.9 in")))
sketch5.addConstraint(Sketcher.Constraint("DistanceY", 2, 3, 1, 3, Q("0.6 in")))
sketch5.addConstraint(Sketcher.Constraint("DistanceY", 3, 3, 2, 3, Q("1.1 in")))
sketch5.addConstraint(Sketcher.Constraint("DistanceX", 3, 3, 4, 3, Q("1.2 in")))
sketch5.addConstraint(Sketcher.Constraint("DistanceX", 1, 3, -1, 1, Q("2.95 in")))
sketch5.addConstraint(Sketcher.Constraint("DistanceX", 6, 3, 7, 3, Q("1.46 in")))
sketch5.addConstraint(Sketcher.Constraint("DistanceY", -1, 1, 0, 3, Q("1.825 in")))
sketch5.addConstraint(Sketcher.Constraint("DistanceX", -1, 1, 6, 3, Q("34.778683 mm")))
doc.recompute()
hole3 = body.newObject("PartDesign::Hole", "Hole002")
hole3.Profile = sketch5
hole3.ThreadType = "None"
hole3.Diameter = Q("0.125 in")
hole3.DepthType = "ThroughAll"
hole3.HoleCutType = "Countersink"
hole3.HoleCutDiameter = Q("0.27 in")
hole3.HoleCutCountersinkAngle = 90
hole3.Reversed = True

sketch6 = body.newObject("Sketcher::SketchObject", "Sketch005")
sketch6.AttachmentSupport = (doc.getObject("XY_Plane"), [""])
sketch6.MapMode = "FlatFace"
sketch6.AttachmentOffset = App.Placement(V(0, 0, 0.16 * 25.4), App.Rotation())
add_polygon(sketch6, [(19.7, 85.1), (19.7, 83.8), (40.6, 83.8), (40.6, 85.1)])
add_polygon(sketch6, [(66, 85.1), (66, 83.8), (87, 83.8), (87, 85.1)])
add_polygon(sketch6, [(19.7, 53.3), (19.7, 52.1), (40.6, 52.1), (40.6, 53.3)])
add_polygon(sketch6, [(66, 53.3), (66, 52.1), (87, 52.1), (87, 53.3)])
sketch6.addConstraint(Sketcher.Constraint("Vertical", 0))
sketch6.addConstraint(Sketcher.Constraint("Horizontal", 1))
sketch6.addConstraint(Sketcher.Constraint("Vertical", 2))
sketch6.addConstraint(Sketcher.Constraint("Horizontal", 3))
sketch6.addConstraint(Sketcher.Constraint("Vertical", 4))
sketch6.addConstraint(Sketcher.Constraint("Horizontal", 5))
sketch6.addConstraint(Sketcher.Constraint("Vertical", 6))
sketch6.addConstraint(Sketcher.Constraint("Horizontal", 7))
sketch6.addConstraint(Sketcher.Constraint("Vertical", 8))
sketch6.addConstraint(Sketcher.Constraint("Horizontal", 9))
sketch6.addConstraint(Sketcher.Constraint("Vertical", 10))
sketch6.addConstraint(Sketcher.Constraint("Horizontal", 11))
sketch6.addConstraint(Sketcher.Constraint("Vertical", 12))
sketch6.addConstraint(Sketcher.Constraint("Horizontal", 13))
sketch6.addConstraint(Sketcher.Constraint("Vertical", 14))
sketch6.addConstraint(Sketcher.Constraint("Horizontal", 15))
sketch6.addConstraint(Sketcher.Constraint("Horizontal", 1, 2, 4, 2))
sketch6.addConstraint(Sketcher.Constraint("Horizontal", 3, 2, 6, 2))
sketch6.addConstraint(Sketcher.Constraint("Horizontal", 9, 2, 12, 2))
sketch6.addConstraint(Sketcher.Constraint("Horizontal", 11, 2, 14, 2))
sketch6.addConstraint(Sketcher.Constraint("Vertical", 3, 2, 8, 2))
sketch6.addConstraint(Sketcher.Constraint("Vertical", 2, 2, 9, 2))
sketch6.addConstraint(Sketcher.Constraint("Vertical", 7, 2, 12, 2))
sketch6.addConstraint(Sketcher.Constraint("Vertical", 6, 2, 13, 2))
sketch6.addConstraint(Sketcher.Constraint("Equal", 3, 5))
sketch6.addConstraint(Sketcher.Constraint("Equal", 6, 8))
sketch6.addConstraint(Sketcher.Constraint("DistanceX", 1, 2, 4, 2, Q("1 in")))
sketch6.addConstraint(Sketcher.Constraint("DistanceY", 0, 2, 0, 1, Q("0.05 in")))
sketch6.addConstraint(Sketcher.Constraint("DistanceY", -1, 1, 0, 2, Q("3.3 in")))
sketch6.addConstraint(Sketcher.Constraint("DistanceY", -1, 1, 10, 2, Q("2.1 in")))
sketch6.addConstraint(Sketcher.Constraint("DistanceX", 1, 1, 1, 2, Q("0.825 in")))
sketch6.addConstraint(Sketcher.Constraint("DistanceX", -1, 1, 0, 2, Q("19.665683 mm")))
pad3 = body.newObject("PartDesign::Pad", "Pad002")
pad3.Profile = sketch6
pad3.Length = Q("0.125 in")

sketch7 = body.newObject("Sketcher::SketchObject", "Sketch006")
sketch7.AttachmentSupport = (doc.getObject("XY_Plane"), [""])
sketch7.MapMode = "FlatFace"
sketch7.AttachmentOffset = App.Placement(V(0, 0, 0.16 * 25.4), App.Rotation())
add_polygon(sketch7, [(19.7, 52.1), (19.7, 50.8), (87, 50.8), (87, 52.1)])
add_polygon(sketch7, [(87, 86.4), (19.7, 86.4), (19.7, 85.1), (87, 85.1)])
sketch7.addConstraint(Sketcher.Constraint("Vertical", 0))
sketch7.addConstraint(Sketcher.Constraint("Horizontal", 1))
sketch7.addConstraint(Sketcher.Constraint("Vertical", 2))
sketch7.addConstraint(Sketcher.Constraint("Horizontal", 3))
sketch7.addConstraint(Sketcher.Constraint("Horizontal", 4))
sketch7.addConstraint(Sketcher.Constraint("Vertical", 5))
sketch7.addConstraint(Sketcher.Constraint("Horizontal", 6))
sketch7.addConstraint(Sketcher.Constraint("Vertical", 7))
sketch7.addConstraint(Sketcher.Constraint("Vertical", 3, 2, 4, 2))
sketch7.addConstraint(Sketcher.Constraint("Vertical", 2, 2, 6, 2))
sketch7.addConstraint(Sketcher.Constraint("Equal", 2, 5))
sketch7.addConstraint(Sketcher.Constraint("DistanceY", -1, 1, 0, 2, Q("2 in")))
sketch7.addConstraint(Sketcher.Constraint("DistanceX", 1, 1, 1, 2, Q("2.65 in")))
sketch7.addConstraint(Sketcher.Constraint("DistanceY", 0, 2, 0, 1, Q("0.05 in")))
sketch7.addConstraint(Sketcher.Constraint("DistanceY", -1, 1, 4, 2, Q("3.4 in")))
sketch7.addConstraint(Sketcher.Constraint("DistanceX", -1, 1, 0, 2, Q("19.665683 mm")))
pad4 = body.newObject("PartDesign::Pad", "Pad003")
pad4.Profile = sketch7
pad4.Length = Q("0.185 in")
doc.recompute()

chamfer = body.newObject("PartDesign::Chamfer", "Chamfer")
chamfer.Base = (pad4, edges_at(pad4, [(53.321, 52.07, 8.763), (53.321, 85.09, 8.763)]))
chamfer.Size = Q("0.04 in")

sketch8 = body.newObject("Sketcher::SketchObject", "Sketch007")
sketch8.AttachmentSupport = (doc.getObject("XY_Plane"), [""])
sketch8.MapMode = "FlatFace"
add_polygon(sketch8, [(-94, 31), (-94, -49), (97, -49), (97, 31)])
sketch8.addConstraint(Sketcher.Constraint("Vertical", 0))
sketch8.addConstraint(Sketcher.Constraint("Horizontal", 1))
sketch8.addConstraint(Sketcher.Constraint("Vertical", 2))
sketch8.addConstraint(Sketcher.Constraint("Horizontal", 3))
sketch8.addConstraint(Sketcher.Constraint("DistanceX", 1, 1, 1, 2, Q("190.560125 mm")))
sketch8.addConstraint(Sketcher.Constraint("DistanceY", 0, 2, 0, 1, Q("80.004267 mm")))
sketch8.addConstraint(Sketcher.Constraint("DistanceY", 0, 2, -1, 1, Q("49.013272 mm")))
sketch8.addConstraint(Sketcher.Constraint("DistanceX", 0, 2, -1, 1, Q("94.018057 mm")))
pocket1 = body.newObject("PartDesign::Pocket", "Pocket")
pocket1.Profile = sketch8
pocket1.Length = Q("0.31 in")
pocket1.Reversed = True

sketch9 = body.newObject("Sketcher::SketchObject", "Sketch008")
sketch9.AttachmentSupport = (doc.getObject("XY_Plane"), [""])
sketch9.MapMode = "FlatFace"
add_polygon(sketch9, [(11, 51), (11, 23), (99, 23), (99, 51)])
sketch9.addConstraint(Sketcher.Constraint("Vertical", 0))
sketch9.addConstraint(Sketcher.Constraint("Horizontal", 1))
sketch9.addConstraint(Sketcher.Constraint("Vertical", 2))
sketch9.addConstraint(Sketcher.Constraint("Horizontal", 3))
sketch9.addConstraint(Sketcher.Constraint("DistanceX", 1, 1, 1, 2, Q("87.62295 mm")))
sketch9.addConstraint(Sketcher.Constraint("DistanceY", 0, 2, 0, 1, Q("28.031504 mm")))
sketch9.addConstraint(Sketcher.Constraint("DistanceY", -1, 1, 0, 2, Q("22.927722 mm")))
sketch9.addConstraint(Sketcher.Constraint("DistanceX", -1, 1, 0, 2, Q("11.271408 mm")))
pocket2 = body.newObject("PartDesign::Pocket", "Pocket001")
pocket2.Profile = sketch9
pocket2.Length = Q("0.43 in")
pocket2.Reversed = True

doc.recompute()
